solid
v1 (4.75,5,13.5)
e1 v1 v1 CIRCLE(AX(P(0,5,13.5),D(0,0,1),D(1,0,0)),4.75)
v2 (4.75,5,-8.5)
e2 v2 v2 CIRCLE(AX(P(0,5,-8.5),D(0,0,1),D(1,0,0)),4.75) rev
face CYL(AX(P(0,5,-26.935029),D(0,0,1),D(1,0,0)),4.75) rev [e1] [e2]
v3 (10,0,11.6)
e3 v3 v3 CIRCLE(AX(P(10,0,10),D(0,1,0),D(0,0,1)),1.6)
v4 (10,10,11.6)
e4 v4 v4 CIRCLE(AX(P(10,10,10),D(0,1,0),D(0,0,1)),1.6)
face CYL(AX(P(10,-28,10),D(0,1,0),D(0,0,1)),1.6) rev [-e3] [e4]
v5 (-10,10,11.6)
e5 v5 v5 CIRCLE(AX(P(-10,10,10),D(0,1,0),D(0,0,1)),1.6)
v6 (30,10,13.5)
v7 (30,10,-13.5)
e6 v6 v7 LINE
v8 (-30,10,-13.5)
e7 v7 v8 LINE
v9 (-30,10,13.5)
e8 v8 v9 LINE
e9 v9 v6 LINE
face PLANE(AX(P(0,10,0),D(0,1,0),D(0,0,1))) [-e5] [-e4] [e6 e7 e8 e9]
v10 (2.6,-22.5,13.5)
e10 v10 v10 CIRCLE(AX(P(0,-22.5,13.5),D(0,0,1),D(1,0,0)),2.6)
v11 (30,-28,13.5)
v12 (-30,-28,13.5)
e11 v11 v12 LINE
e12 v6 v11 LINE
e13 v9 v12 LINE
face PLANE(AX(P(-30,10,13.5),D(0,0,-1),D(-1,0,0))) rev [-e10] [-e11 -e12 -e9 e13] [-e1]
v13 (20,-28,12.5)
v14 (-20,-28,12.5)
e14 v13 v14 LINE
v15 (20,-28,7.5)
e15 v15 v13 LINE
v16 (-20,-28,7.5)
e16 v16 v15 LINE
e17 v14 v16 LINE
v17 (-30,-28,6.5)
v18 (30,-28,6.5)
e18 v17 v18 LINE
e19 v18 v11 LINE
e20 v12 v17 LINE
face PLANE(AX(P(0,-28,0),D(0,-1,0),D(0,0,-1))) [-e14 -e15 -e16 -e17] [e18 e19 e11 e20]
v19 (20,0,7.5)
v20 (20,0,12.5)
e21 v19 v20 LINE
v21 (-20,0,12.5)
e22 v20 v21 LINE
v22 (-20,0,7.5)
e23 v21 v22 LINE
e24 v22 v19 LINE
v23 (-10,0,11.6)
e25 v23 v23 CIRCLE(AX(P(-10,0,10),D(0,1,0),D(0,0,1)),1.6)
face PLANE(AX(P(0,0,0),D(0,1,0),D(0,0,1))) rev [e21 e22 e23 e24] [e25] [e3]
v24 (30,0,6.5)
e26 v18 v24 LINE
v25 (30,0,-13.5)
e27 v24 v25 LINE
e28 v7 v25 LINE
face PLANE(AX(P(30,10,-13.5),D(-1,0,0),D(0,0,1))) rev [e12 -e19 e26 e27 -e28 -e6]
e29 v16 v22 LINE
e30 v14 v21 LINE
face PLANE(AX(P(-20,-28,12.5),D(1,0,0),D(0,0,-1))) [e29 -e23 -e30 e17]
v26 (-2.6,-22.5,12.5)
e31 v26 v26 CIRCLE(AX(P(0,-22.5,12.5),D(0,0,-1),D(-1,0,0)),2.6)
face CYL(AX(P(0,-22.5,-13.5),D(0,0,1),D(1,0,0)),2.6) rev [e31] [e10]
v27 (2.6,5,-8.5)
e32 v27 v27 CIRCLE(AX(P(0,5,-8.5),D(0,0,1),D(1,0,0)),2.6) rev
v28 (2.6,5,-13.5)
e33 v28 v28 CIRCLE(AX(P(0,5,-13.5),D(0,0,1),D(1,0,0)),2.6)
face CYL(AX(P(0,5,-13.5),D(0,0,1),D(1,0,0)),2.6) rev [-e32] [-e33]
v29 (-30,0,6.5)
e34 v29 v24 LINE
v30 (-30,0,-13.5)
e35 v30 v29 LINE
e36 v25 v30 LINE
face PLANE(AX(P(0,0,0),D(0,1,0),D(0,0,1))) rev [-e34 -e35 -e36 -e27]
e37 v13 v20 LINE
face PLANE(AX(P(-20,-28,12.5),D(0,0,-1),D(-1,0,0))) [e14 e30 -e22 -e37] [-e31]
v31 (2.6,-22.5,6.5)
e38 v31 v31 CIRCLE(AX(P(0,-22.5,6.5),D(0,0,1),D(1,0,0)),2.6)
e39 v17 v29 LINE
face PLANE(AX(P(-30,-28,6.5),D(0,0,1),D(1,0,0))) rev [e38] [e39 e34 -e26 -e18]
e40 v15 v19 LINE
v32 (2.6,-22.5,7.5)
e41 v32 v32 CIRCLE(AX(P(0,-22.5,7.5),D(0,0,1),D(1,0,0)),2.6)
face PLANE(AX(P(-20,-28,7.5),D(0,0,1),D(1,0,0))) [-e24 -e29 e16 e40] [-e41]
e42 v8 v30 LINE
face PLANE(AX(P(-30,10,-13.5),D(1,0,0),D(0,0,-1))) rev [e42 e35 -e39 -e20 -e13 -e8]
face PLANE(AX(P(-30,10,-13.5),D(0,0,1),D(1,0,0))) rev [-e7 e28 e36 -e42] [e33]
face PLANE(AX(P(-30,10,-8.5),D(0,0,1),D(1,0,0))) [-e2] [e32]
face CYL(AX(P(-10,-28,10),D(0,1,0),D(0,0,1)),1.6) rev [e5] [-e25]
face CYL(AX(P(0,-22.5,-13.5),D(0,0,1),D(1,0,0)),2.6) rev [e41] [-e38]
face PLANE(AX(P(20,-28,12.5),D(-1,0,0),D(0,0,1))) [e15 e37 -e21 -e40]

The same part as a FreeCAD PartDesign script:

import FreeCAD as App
import Part
import Sketcher
Q = App.Units.Quantity


def add_polygon(sketch, points):
    """Adds a closed chain of lines whose ends are joined by coincident constraints."""
    first, n = sketch.GeometryCount, len(points)
    for a, b in zip(points, points[1:] + points[:1]):
        sketch.addGeometry(Part.LineSegment(App.Vector(*a, 0), App.Vector(*b, 0)), False)
    for i in range(n):
        sketch.addConstraint(Sketcher.Constraint("Coincident", first + i, 2, first + (i + 1) % n, 1))

doc = App.newDocument("Part")
params = doc.addObject("Spreadsheet::Sheet", "Params")
for row, (alias, value) in enumerate([
    ("sketch1_width", "60 mm"),
    ("sketch1_height", "27 mm"),
    ("pad1_length", "10 mm"),
    ("sketch2_diameter", "5.2 mm"),
    ("sketch3_diameter", "9.5 mm"),
    ("pocket2_length", "22 mm"),
    ("sketch4_width", "60 mm"),
    ("sketch4_width2", "40 mm"),
    ("sketch4_height", "7 mm"),
    ("sketch4_height2", "5 mm"),
    ("pad2_length", "28 mm"),
    ("sketch5_diameter", "5.2 mm"),
    ("sketch6_diameter", "3.2 mm"),
], start=1):
    params.set(f"A{row}", alias)
    params.set(f"B{row}", "=" + value)
    params.setAlias(f"B{row}", alias)

body = doc.addObject("PartDesign::Body", "Body")

sketch1 = body.newObject("Sketcher::SketchObject", "Sketch")
sketch1.AttachmentSupport = (doc.getObject("XZ_Plane"), [""])
sketch1.MapMode = "FlatFace"
add_polygon(sketch1, [(-30, -13.5), (-30, 13.5), (30, 13.5), (30, -13.5)])
sketch1.addConstraint([
    Sketcher.Constraint("Vertical", 0),
    Sketcher.Constraint("Horizontal", 1),
    Sketcher.Constraint("Vertical", 2),
    Sketcher.Constraint("Horizontal", 3),
    Sketcher.Constraint("Symmetric", 0, 2, 2, 2, -1, 1),
    Sketcher.Constraint("DistanceX", 1, 1, 1, 2, Q("60 mm")),
    Sketcher.Constraint("DistanceY", 0, 1, 0, 2, Q("27 mm")),
])
sketch1.setExpression("Constraints[9]", "Params.sketch1_width")
sketch1.setExpression("Constraints[10]", "Params.sketch1_height")
pad1 = body.newObject("PartDesign::Pad", "Pad")
pad1.Profile = sketch1
pad1.setExpression("Length", "Params.pad1_length")
pad1.Reversed = True

sketch2 = body.newObject("Sketcher::SketchObject", "Sketch001")
sketch2.AttachmentSupport = (doc.getObject("XY_Plane"), [""])
sketch2.MapMode = "FlatFace"
sketch2.AttachmentOffset = App.Placement(App.Vector(0, 0, 13.5), App.Rotation())
sketch2.addGeometry(Part.Circle(App.Vector(0, 5, 0), App.Vector(0, 0, 1), 2.6), False)
sketch2.addConstraint([
    Sketcher.Constraint("PointOnObject", 0, 3, -2),
    Sketcher.Constraint("Diameter", 0, Q("5.2 mm")),
    Sketcher.Constraint("DistanceY", -1, 1, 0, 3, Q("5 mm")),
])
sketch2.setExpression("Constraints[1]", "Params.sketch2_diameter")
pocket1 = body.newObject("PartDesign::Pocket", "Pocket")
pocket1.Profile = sketch2
pocket1.Type = "ThroughAll"

sketch3 = body.newObject("Sketcher::SketchObject", "Sketch002")
sketch3.AttachmentSupport = (doc.getObject("XY_Plane"), [""])
sketch3.MapMode = "FlatFace"
sketch3.AttachmentOffset = App.Placement(App.Vector(0, 0, 13.5), App.Rotation())
sketch3.addGeometry(Part.Circle(App.Vector(0, 5, 0), App.Vector(0, 0, 1), 4.75), False)
sketch3.addConstraint([
    Sketcher.Constraint("PointOnObject", 0, 3, -2),
    Sketcher.Constraint("Diameter", 0, Q("9.5 mm")),
    Sketcher.Constraint("DistanceY", -1, 1, 0, 3, Q("5 mm")),
])
sketch3.setExpression("Constraints[1]", "Params.sketch3_diameter")
pocket2 = body.newObject("PartDesign::Pocket", "Pocket001")
pocket2.Profile = sketch3
pocket2.setExpression("Length", "Params.pocket2_length")

sketch4 = body.newObject("Sketcher::SketchObject", "Sketch003")
sketch4.AttachmentSupport = (doc.getObject("XZ_Plane"), [""])
sketch4.MapMode = "FlatFace"
add_polygon(sketch4, [(-30, 13.5), (-30, 6.5), (30, 6.5), (30, 13.5)])
add_polygon(sketch4, [(20, 7.5), (-20, 7.5), (-20, 12.5), (20, 12.5)])
sketch4.addConstraint([
    Sketcher.Constraint("Vertical", 0),
    Sketcher.Constraint("Horizontal", 1),
    Sketcher.Constraint("Vertical", 2),
    Sketcher.Constraint("Horizontal", 3),
    Sketcher.Constraint("Horizontal", 4),
    Sketcher.Constraint("Vertical", 5),
    Sketcher.Constraint("Horizontal", 6),
    Sketcher.Constraint("Vertical", 7),
    Sketcher.Constraint("DistanceX", 1, 1, 1, 2, Q("60 mm")),
    Sketcher.Constraint("DistanceX", 4, 2, 4, 1, Q("40 mm")),
    Sketcher.Constraint("DistanceY", 0, 2, 0, 1, Q("7 mm")),
    Sketcher.Constraint("DistanceY", 5, 1, 5, 2, Q("5 mm")),
    Sketcher.Constraint("DistanceX", 0, 2, -1, 1, Q("30 mm")),
    Sketcher.Constraint("DistanceX", 4, 2, -1, 1, Q("20 mm")),
    Sketcher.Constraint("DistanceY", 0, 2, 4, 2, Q("1 mm")),
    Sketcher.Constraint("DistanceY", -1, 1, 0, 2, Q("6.5 mm")),
])
sketch4.setExpression("Constraints[16]", "Params.sketch4_width")
sketch4.setExpression("Constraints[17]", "Params.sketch4_width2")
sketch4.setExpression("Constraints[18]", "Params.sketch4_height")
sketch4.setExpression("Constraints[19]", "Params.sketch4_height2")
pad2 = body.newObject("PartDesign::Pad", "Pad001")
pad2.Profile = sketch4
pad2.setExpression("Length", "Params.pad2_length")

sketch5 = body.newObject("Sketcher::SketchObject", "Sketch004")
sketch5.AttachmentSupport = (doc.getObject("XY_Plane"), [""])
sketch5.MapMode = "FlatFace"
sketch5.AttachmentOffset = App.Placement(App.Vector(0, 0, 13.5), App.Rotation())
sketch5.addGeometry(Part.Circle(App.Vector(0, -22.5, 0), App.Vector(0, 0, 1), 2.6), False)
sketch5.addConstraint([
    Sketcher.Constraint("PointOnObject", 0, 3, -2),
    Sketcher.Constraint("Diameter", 0, Q("5.2 mm")),
    Sketcher.Constraint("DistanceY", 0, 3, -1, 1, Q("22.5 mm")),
])
sketch5.setExpression("Constraints[1]", "Params.sketch5_diameter")
pocket3 = body.newObject("PartDesign::Pocket", "Pocket002")
pocket3.Profile = sketch5
pocket3.Type = "ThroughAll"

sketch6 = body.newObject("Sketcher::SketchObject", "Sketch005")
sketch6.AttachmentSupport = (doc.getObject("XZ_Plane"), [""])
sketch6.MapMode = "FlatFace"
sketch6.AttachmentOffset = App.Placement(App.Vector(0, 0, -10), App.Rotation())
sketch6.addGeometry([
    Part.Circle(App.Vector(-10, 10, 0), App.Vector(0, 0, 1), 1.6),
    Part.Circle(App.Vector(10, 10, 0), App.Vector(0, 0, 1), 1.6),
], False)
sketch6.addConstraint([
    Sketcher.Constraint("Equal", 0, 1),
    Sketcher.Constraint("Symmetric", 0, 3, 1, 3, -2),
    Sketcher.Constraint("Diameter", 0, Q("3.2 mm")),
    Sketcher.Constraint("DistanceX", 0, 3, -1, 1, Q("10 mm")),
    Sketcher.Constraint("DistanceY", -1, 1, 0, 3, Q("10 mm")),
])
sketch6.setExpression("Constraints[2]", "Params.sketch6_diameter")
pocket4 = body.newObject("PartDesign::Pocket", "Pocket003")
pocket4.Profile = sketch6
pocket4.Type = "ThroughAll"
pocket4.Reversed = True

doc.recompute()
